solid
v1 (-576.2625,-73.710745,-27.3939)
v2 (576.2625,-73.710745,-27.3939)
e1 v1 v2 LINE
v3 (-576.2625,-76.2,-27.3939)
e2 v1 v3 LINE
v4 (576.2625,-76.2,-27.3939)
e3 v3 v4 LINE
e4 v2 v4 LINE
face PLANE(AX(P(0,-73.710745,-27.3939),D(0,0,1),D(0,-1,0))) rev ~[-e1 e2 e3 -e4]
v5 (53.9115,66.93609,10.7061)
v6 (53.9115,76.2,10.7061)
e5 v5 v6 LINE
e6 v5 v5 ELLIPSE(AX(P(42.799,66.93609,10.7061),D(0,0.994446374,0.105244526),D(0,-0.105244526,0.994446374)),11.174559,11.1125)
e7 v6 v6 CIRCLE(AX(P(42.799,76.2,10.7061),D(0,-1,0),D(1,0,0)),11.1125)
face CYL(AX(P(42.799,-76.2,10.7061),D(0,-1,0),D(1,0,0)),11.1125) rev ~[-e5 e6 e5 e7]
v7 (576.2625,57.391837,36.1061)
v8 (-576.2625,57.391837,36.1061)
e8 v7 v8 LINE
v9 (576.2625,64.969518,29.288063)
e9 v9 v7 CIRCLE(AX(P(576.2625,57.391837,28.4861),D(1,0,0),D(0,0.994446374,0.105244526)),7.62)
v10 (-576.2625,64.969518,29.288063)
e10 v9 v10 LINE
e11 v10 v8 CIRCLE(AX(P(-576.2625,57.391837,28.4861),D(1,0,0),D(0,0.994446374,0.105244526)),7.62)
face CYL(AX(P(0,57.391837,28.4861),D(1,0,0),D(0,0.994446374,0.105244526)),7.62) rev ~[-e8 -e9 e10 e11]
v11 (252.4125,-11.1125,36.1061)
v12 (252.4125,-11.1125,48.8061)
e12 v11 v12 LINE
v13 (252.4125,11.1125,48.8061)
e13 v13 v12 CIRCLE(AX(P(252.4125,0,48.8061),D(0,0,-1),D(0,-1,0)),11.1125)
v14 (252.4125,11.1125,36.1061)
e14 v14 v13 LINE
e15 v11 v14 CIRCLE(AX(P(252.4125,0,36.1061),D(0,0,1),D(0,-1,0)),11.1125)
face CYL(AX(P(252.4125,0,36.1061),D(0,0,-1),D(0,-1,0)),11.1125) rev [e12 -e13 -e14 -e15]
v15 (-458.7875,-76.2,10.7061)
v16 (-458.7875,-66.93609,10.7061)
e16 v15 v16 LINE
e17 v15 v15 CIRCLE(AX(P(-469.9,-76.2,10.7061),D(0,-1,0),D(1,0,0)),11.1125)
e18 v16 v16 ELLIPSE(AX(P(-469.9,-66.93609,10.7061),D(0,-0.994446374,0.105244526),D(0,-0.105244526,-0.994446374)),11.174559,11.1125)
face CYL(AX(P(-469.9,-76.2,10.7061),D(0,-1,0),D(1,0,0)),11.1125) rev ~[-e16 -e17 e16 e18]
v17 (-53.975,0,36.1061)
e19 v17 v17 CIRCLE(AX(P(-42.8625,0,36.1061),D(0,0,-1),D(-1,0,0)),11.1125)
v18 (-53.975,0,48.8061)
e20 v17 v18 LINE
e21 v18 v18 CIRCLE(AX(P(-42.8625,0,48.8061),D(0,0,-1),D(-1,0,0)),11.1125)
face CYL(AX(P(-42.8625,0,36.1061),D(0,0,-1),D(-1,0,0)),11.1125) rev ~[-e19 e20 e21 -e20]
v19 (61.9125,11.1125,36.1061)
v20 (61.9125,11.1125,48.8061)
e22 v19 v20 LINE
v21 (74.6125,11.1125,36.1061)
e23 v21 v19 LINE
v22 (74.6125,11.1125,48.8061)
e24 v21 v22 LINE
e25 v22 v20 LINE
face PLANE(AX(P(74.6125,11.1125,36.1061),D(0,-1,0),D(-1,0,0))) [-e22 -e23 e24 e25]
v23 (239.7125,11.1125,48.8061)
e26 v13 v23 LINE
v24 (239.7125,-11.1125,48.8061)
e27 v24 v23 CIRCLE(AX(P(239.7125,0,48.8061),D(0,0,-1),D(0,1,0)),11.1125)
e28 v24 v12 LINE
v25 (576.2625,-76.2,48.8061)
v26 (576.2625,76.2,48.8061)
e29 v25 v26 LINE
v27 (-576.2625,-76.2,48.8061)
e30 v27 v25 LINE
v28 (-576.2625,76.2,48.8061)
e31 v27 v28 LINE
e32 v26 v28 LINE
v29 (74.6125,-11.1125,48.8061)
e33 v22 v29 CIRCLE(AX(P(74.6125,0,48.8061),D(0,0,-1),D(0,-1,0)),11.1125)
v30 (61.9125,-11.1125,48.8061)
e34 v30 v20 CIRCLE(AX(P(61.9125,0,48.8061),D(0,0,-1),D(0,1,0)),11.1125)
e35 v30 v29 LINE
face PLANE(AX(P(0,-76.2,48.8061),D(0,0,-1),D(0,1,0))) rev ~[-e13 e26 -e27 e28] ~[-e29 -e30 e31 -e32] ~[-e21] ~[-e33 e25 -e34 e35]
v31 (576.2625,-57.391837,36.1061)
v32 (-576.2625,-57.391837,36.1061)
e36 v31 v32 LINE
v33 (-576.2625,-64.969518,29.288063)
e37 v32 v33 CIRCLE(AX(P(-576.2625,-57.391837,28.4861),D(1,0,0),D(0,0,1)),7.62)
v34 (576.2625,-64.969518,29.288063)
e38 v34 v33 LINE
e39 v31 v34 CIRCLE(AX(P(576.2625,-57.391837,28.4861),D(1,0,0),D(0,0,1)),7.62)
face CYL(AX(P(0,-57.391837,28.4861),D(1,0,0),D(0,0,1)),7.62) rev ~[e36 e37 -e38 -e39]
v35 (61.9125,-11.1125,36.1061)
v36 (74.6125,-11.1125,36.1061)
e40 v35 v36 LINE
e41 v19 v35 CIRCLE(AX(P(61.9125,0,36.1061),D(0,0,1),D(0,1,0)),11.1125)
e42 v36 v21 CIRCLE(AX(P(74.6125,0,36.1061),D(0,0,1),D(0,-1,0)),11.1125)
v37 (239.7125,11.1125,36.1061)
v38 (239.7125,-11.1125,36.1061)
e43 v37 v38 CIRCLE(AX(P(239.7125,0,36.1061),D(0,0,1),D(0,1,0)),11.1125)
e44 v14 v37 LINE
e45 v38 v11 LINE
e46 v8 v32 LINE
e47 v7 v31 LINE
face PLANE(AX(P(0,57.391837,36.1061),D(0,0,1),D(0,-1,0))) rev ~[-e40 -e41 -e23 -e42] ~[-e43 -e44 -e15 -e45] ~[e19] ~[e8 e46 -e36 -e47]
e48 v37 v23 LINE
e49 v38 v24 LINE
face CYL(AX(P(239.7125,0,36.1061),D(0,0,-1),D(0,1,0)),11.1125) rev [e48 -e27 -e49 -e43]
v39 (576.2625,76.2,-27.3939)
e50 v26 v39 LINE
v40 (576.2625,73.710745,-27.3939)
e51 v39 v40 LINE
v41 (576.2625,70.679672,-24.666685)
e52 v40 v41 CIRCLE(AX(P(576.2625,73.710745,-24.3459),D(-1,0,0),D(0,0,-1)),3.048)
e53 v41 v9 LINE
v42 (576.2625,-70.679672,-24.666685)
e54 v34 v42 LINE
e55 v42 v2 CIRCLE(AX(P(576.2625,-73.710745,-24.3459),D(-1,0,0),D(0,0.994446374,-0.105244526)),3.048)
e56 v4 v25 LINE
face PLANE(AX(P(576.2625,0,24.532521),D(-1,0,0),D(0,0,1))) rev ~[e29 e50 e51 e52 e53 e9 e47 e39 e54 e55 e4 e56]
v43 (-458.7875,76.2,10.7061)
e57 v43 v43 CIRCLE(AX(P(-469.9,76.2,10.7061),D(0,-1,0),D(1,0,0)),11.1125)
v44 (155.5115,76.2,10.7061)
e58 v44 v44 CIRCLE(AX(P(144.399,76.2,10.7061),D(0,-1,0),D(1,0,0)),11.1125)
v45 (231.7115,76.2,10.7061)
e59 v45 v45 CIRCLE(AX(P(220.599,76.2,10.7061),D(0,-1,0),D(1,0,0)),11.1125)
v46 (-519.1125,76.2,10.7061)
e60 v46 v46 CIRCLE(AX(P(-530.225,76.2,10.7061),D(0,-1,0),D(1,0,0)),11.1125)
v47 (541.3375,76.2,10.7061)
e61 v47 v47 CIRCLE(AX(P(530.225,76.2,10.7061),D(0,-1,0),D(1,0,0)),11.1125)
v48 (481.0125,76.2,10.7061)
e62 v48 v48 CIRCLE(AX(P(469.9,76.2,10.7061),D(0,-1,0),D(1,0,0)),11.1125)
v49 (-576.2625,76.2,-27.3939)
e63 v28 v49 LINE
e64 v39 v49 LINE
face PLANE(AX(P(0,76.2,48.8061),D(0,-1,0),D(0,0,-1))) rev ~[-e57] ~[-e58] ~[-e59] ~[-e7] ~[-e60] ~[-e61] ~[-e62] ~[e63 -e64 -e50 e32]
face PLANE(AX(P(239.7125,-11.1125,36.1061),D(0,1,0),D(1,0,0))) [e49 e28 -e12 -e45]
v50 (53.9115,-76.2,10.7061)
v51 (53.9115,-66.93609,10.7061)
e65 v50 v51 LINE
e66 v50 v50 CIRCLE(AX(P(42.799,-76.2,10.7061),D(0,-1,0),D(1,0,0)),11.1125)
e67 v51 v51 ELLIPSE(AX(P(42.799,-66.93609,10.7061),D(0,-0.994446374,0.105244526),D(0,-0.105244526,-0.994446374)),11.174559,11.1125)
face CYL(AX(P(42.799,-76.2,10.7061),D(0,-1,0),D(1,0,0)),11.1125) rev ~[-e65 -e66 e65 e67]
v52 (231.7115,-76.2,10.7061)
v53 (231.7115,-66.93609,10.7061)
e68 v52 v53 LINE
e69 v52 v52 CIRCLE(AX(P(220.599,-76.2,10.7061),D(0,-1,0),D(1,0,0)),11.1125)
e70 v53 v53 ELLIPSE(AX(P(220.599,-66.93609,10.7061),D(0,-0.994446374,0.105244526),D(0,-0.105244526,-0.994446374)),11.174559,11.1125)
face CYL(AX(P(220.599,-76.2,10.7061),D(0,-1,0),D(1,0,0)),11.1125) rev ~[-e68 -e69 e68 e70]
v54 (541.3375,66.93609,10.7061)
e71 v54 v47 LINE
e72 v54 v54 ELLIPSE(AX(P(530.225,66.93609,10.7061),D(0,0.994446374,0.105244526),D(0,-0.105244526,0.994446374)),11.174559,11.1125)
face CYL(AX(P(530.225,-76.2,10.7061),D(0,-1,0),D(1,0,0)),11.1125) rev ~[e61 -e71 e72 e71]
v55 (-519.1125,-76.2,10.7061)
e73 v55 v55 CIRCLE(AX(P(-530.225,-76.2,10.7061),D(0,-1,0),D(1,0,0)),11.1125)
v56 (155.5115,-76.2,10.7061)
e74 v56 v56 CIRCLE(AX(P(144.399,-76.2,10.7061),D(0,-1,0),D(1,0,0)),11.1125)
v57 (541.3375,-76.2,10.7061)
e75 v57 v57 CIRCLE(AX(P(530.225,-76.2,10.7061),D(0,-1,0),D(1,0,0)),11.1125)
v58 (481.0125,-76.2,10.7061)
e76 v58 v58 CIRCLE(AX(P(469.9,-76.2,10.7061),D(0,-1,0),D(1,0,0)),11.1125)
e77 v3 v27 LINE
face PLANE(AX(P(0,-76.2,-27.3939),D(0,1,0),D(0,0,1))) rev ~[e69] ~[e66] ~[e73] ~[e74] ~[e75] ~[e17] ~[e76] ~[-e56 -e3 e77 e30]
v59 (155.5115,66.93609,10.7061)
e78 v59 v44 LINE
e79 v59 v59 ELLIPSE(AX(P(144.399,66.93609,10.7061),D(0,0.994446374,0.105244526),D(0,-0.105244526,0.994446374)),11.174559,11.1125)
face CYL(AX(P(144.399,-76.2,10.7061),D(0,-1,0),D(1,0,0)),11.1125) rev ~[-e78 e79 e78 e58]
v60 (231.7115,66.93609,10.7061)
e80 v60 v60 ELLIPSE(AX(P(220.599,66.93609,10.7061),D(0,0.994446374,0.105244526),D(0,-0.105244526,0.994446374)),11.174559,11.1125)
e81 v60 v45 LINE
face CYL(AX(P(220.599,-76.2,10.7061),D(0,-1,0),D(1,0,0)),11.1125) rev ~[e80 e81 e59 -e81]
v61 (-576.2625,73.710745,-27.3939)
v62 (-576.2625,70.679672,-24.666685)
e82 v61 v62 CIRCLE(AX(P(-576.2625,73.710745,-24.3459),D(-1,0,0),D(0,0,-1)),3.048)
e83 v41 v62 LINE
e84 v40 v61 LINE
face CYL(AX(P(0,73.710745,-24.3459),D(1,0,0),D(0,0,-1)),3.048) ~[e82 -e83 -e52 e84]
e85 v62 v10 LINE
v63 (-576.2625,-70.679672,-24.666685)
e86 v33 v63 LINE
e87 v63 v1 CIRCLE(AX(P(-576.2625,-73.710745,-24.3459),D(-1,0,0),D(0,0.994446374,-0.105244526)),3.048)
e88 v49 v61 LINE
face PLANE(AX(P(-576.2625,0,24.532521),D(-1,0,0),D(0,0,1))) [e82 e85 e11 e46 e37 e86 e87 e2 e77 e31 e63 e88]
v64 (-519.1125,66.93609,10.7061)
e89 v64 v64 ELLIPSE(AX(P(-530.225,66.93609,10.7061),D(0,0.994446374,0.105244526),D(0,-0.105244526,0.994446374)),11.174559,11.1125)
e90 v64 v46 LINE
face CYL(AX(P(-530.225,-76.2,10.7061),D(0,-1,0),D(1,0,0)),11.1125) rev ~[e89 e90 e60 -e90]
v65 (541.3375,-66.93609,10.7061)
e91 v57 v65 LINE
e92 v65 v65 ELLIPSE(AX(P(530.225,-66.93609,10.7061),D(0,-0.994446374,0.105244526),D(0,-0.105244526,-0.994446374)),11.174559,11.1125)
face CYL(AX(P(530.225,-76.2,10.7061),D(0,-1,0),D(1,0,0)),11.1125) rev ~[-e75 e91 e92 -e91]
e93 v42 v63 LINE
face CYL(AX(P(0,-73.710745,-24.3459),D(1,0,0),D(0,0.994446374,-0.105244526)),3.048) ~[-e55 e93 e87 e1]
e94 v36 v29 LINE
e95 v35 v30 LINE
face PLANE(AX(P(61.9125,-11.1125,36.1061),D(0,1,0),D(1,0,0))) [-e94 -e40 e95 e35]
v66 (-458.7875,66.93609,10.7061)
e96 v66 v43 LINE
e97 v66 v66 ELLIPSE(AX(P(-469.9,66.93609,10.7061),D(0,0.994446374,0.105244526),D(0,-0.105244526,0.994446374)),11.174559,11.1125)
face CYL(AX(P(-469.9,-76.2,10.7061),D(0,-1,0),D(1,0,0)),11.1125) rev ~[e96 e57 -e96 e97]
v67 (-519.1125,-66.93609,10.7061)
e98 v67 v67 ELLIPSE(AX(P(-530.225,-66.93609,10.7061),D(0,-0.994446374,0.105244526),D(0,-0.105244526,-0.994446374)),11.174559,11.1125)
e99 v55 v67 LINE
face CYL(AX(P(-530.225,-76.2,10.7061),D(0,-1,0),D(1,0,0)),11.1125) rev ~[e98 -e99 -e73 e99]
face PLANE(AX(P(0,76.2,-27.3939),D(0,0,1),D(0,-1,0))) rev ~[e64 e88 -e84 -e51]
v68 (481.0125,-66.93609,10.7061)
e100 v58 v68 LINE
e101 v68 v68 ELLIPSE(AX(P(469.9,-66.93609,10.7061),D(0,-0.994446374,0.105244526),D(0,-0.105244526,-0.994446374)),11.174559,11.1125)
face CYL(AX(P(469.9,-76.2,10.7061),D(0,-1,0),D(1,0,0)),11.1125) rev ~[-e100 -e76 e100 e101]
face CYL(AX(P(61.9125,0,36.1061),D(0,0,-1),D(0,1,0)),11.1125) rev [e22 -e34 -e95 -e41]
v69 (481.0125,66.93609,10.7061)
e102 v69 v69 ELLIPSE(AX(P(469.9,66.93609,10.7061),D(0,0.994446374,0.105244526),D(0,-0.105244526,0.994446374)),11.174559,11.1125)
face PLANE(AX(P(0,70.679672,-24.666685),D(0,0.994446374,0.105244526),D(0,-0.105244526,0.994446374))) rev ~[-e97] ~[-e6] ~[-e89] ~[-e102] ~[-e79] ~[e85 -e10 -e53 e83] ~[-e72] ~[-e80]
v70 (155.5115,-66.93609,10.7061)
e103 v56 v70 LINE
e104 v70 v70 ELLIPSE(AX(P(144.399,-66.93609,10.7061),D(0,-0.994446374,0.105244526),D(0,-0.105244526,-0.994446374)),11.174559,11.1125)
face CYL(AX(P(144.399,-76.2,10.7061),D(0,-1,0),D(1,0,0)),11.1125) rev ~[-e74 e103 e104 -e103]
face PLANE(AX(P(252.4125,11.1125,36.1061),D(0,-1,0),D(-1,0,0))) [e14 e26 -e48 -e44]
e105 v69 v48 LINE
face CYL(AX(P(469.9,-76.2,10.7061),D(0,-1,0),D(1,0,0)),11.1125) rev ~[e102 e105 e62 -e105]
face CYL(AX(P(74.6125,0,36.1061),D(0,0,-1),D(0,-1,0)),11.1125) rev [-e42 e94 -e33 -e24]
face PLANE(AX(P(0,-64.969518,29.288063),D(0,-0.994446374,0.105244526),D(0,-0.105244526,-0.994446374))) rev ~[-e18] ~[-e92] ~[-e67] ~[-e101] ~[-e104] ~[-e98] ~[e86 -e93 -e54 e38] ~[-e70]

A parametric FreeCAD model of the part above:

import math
import FreeCAD as App
import Part
import Sketcher
Q = App.Units.Quantity

doc = App.newDocument("Part")
body = doc.addObject("PartDesign::Body", "Body")

# Sketch on YZ plane
sketch1 = doc.addObject("Sketcher::SketchObject", "Sketch")
body.addObject(sketch1)
sketch1.AttachmentSupport = (doc.YZ_Plane, [""])
sketch1.MapMode = "FlatFace"
sketch1.addGeometry([
    Part.LineSegment(App.Vector(76.2, 48.8, 0), App.Vector(-76.2, 48.8, 0)),  # 0
    Part.LineSegment(App.Vector(-76.2, 48.8, 0), App.Vector(-76.2, -27.4, 0)),  # 1
    Part.LineSegment(App.Vector(-76.2, -27.4, 0), App.Vector(-73.7, -27.4, 0)),  # 2
    Part.ArcOfCircle(Part.Circle(App.Vector(-73.7, -24.3, 0), App.Vector(0, 0, 1), 3), math.radians(-90), math.radians(-6)),  # 3
    Part.LineSegment(App.Vector(-70.7, -24.7, 0), App.Vector(-65, 29.3, 0)),  # 4
    Part.ArcOfCircle(Part.Circle(App.Vector(-57.4, 28.5, 0), App.Vector(0, 0, 1), 7.6), math.radians(90), math.radians(174)),  # 5
    Part.LineSegment(App.Vector(-57.4, 36.1, 0), App.Vector(57.4, 36.1, 0)),  # 6
    Part.ArcOfCircle(Part.Circle(App.Vector(57.4, 28.5, 0), App.Vector(0, 0, 1), 7.6), math.radians(6), math.radians(90)),  # 7
    Part.LineSegment(App.Vector(65, 29.3, 0), App.Vector(70.7, -24.7, 0)),  # 8
    Part.ArcOfCircle(Part.Circle(App.Vector(73.7, -24.3, 0), App.Vector(0, 0, 1), 3), math.radians(-174), math.radians(-90)),  # 9
    Part.LineSegment(App.Vector(73.7, -27.4, 0), App.Vector(76.2, -27.4, 0)),  # 10
    Part.LineSegment(App.Vector(76.2, -27.4, 0), App.Vector(76.2, 48.8, 0)),  # 11
], False)
sketch1.addConstraint([
    Sketcher.Constraint("Coincident", 0, 2, 1, 1),
    Sketcher.Constraint("Coincident", 1, 2, 2, 1),
    Sketcher.Constraint("Tangent", 2, 2, 3, 1),
    Sketcher.Constraint("Tangent", 3, 2, 4, 1),
    Sketcher.Constraint("Tangent", 4, 2, 5, 2),
    Sketcher.Constraint("Tangent", 5, 1, 6, 1),
    Sketcher.Constraint("Tangent", 6, 2, 7, 2),
    Sketcher.Constraint("Tangent", 7, 1, 8, 1),
    Sketcher.Constraint("Tangent", 8, 2, 9, 1),
    Sketcher.Constraint("Tangent", 9, 2, 10, 1),
    Sketcher.Constraint("Coincident", 10, 2, 11, 1),
    Sketcher.Constraint("Coincident", 11, 2, 0, 1),
    Sketcher.Constraint("Horizontal", 0),
    Sketcher.Constraint("Vertical", 1),
    Sketcher.Constraint("Horizontal", 2),
    Sketcher.Constraint("Horizontal", 6),
    Sketcher.Constraint("Horizontal", 10),
    Sketcher.Constraint("Vertical", 11),
    Sketcher.Constraint("Equal", 5, 7),
    Sketcher.Constraint("Equal", 3, 9),
    Sketcher.Constraint("Symmetric", 3, 3, 9, 3, -2),
    Sketcher.Constraint("Horizontal", 4, 2, 7, 1),
    Sketcher.Constraint("Equal", 2, 10),
    Sketcher.Constraint("Radius", 5, Q("0.3 in")),
    Sketcher.Constraint("DistanceX", 0, 2, 0, 1, Q("6 in")),
    Sketcher.Constraint("DistanceY", 1, 2, 1, 1, Q("3 in")),
    Sketcher.Constraint("Radius", 3, Q("0.12 in")),
    Sketcher.Constraint("DistanceY", 5, 3, 0, 2, Q("0.8 in")),
    Sketcher.Constraint("DistanceY", 3, 3, -1, 1, Q("0.9585 in")),
    Sketcher.Constraint("DistanceX", 2, 1, 2, 2, Q("2.489255 mm")),
    Sketcher.Constraint("DistanceX", 6, 1, 6, 2, Q("114.783673 mm")),
])
pad1 = doc.addObject("PartDesign::Pad", "Pad")
body.addObject(pad1)
pad1.Profile = sketch1
pad1.Length = Q("45.375 in")
pad1.Midplane = True

# Sketch on XZ plane
sketch2 = doc.addObject("Sketcher::SketchObject", "Sketch001")
body.addObject(sketch2)
sketch2.AttachmentSupport = (doc.XZ_Plane, [""])
sketch2.MapMode = "FlatFace"
sketch2.AttachmentOffset = App.Placement(App.Vector(0, 0, 3 * 25.4), App.Rotation())
sketch2.addGeometry([
    Part.Circle(App.Vector(530, 11, 0), App.Vector(0, 0, 1), 11),  # 0
    Part.Circle(App.Vector(470, 11, 0), App.Vector(0, 0, 1), 11),  # 1
    Part.Circle(App.Vector(221, 11, 0), App.Vector(0, 0, 1), 11),  # 2
    Part.Circle(App.Vector(43, 11, 0), App.Vector(0, 0, 1), 11),  # 3
    Part.Circle(App.Vector(144, 11, 0), App.Vector(0, 0, 1), 11),  # 4
    Part.Circle(App.Vector(-530, 11, 0), App.Vector(0, 0, 1), 11),  # 5
    Part.Circle(App.Vector(-470, 11, 0), App.Vector(0, 0, 1), 11),  # 6
], False)
sketch2.addConstraint([
    Sketcher.Constraint("Equal", 0, 1),
    Sketcher.Constraint("Equal", 1, 2),
    Sketcher.Constraint("Equal", 2, 3),
    Sketcher.Constraint("Equal", 3, 4),
    Sketcher.Constraint("Equal", 4, 5),
    Sketcher.Constraint("Equal", 5, 6),
    Sketcher.Constraint("Symmetric", 0, 3, 5, 3, -2),
    Sketcher.Constraint("Symmetric", 1, 3, 6, 3, -2),
    Sketcher.Constraint("Horizontal", 0, 3, 1, 3),
    Sketcher.Constraint("Horizontal", 1, 3, 2, 3),
    Sketcher.Constraint("Horizontal", 2, 3, 3, 3),
    Sketcher.Constraint("Horizontal", 3, 3, 4, 3),
    Sketcher.Constraint("Diameter", 0, Q("0.875 in")),
    Sketcher.Constraint("DistanceX", 3, 3, 2, 3, Q("7 in")),
    Sketcher.Constraint("DistanceX", 4, 3, 2, 3, Q("3 in")),
    Sketcher.Constraint("DistanceX", 6, 3, 1, 3, Q("37 in")),
    Sketcher.Constraint("DistanceX", 2, 3, 0, 3, Q("12.19 in")),
    Sketcher.Constraint("DistanceX", 5, 3, 3, 3, Q("22.56 in")),
    Sketcher.Constraint("DistanceY", -1, 1, 0, 3, Q("0.4215 in")),
])
pocket1 = doc.addObject("PartDesign::Pocket", "Pocket")
body.addObject(pocket1)
pocket1.Profile = sketch2
pocket1.Length = Q("6 in")

# Sketch on XY plane
sketch3 = doc.addObject("Sketcher::SketchObject", "Sketch002")
body.addObject(sketch3)
sketch3.AttachmentSupport = (doc.XY_Plane, [""])
sketch3.MapMode = "FlatFace"
sketch3.AttachmentOffset = App.Placement(App.Vector(0, 0, 1.4215 * 25.4), App.Rotation())
sketch3.addGeometry([
    Part.Circle(App.Vector(-43, 0, 0), App.Vector(0, 0, 1), 11),  # 0
    Part.LineSegment(App.Vector(75, -11, 0), App.Vector(62, -11, 0)),  # 1
    Part.ArcOfCircle(Part.Circle(App.Vector(62, 0, 0), App.Vector(0, 0, 1), 11), math.radians(90), math.radians(270)),  # 2
    Part.LineSegment(App.Vector(62, 11, 0), App.Vector(75, 11, 0)),  # 3
    Part.ArcOfCircle(Part.Circle(App.Vector(75, 0, 0), App.Vector(0, 0, 1), 11), math.radians(-90), math.radians(90)),  # 4
    Part.LineSegment(App.Vector(252, -11, 0), App.Vector(240, -11, 0)),  # 5
    Part.ArcOfCircle(Part.Circle(App.Vector(240, 0, 0), App.Vector(0, 0, 1), 11), math.radians(90), math.radians(270)),  # 6
    Part.LineSegment(App.Vector(240, 11, 0), App.Vector(252, 11, 0)),  # 7
    Part.ArcOfCircle(Part.Circle(App.Vector(252, 0, 0), App.Vector(0, 0, 1), 11), math.radians(-90), math.radians(90)),  # 8
], False)
sketch3.addConstraint([
    Sketcher.Constraint("Tangent", 1, 2, 2, 2),
    Sketcher.Constraint("Tangent", 2, 1, 3, 1),
    Sketcher.Constraint("Tangent", 3, 2, 4, 2),
    Sketcher.Constraint("Tangent", 4, 1, 1, 1),
    Sketcher.Constraint("Tangent", 5, 2, 6, 2),
    Sketcher.Constraint("Tangent", 6, 1, 7, 1),
    Sketcher.Constraint("Tangent", 7, 2, 8, 2),
    Sketcher.Constraint("Tangent", 8, 1, 5, 1),
    Sketcher.Constraint("Horizontal", 1),
    Sketcher.Constraint("Horizontal", 3),
    Sketcher.Constraint("Horizontal", 5),
    Sketcher.Constraint("Horizontal", 7),
    Sketcher.Constraint("Equal", 0, 2),
    Sketcher.Constraint("Equal", 4, 6),
    Sketcher.Constraint("PointOnObject", 0, 3, -1),
    Sketcher.Constraint("PointOnObject", 2, 3, -1),
    Sketcher.Constraint("PointOnObject", 6, 3, -1),
    Sketcher.Constraint("Equal", 3, 5),
    Sketcher.Constraint("Diameter", 0, Q("0.875 in")),
    Sketcher.Constraint("DistanceX", 1, 2, 1, 1, Q("0.5 in")),
    Sketcher.Constraint("DistanceX", 2, 3, 6, 3, Q("7 in")),
    Sketcher.Constraint("DistanceX", 0, 3, -1, 1, Q("1.6875 in")),
    Sketcher.Constraint("DistanceX", -1, 1, 2, 3, Q("2.4375 in")),
])
pocket2 = doc.addObject("PartDesign::Pocket", "Pocket001")
body.addObject(pocket2)
pocket2.Profile = sketch3
pocket2.Type = "ThroughAll"
pocket2.Reversed = True

doc.recompute()
